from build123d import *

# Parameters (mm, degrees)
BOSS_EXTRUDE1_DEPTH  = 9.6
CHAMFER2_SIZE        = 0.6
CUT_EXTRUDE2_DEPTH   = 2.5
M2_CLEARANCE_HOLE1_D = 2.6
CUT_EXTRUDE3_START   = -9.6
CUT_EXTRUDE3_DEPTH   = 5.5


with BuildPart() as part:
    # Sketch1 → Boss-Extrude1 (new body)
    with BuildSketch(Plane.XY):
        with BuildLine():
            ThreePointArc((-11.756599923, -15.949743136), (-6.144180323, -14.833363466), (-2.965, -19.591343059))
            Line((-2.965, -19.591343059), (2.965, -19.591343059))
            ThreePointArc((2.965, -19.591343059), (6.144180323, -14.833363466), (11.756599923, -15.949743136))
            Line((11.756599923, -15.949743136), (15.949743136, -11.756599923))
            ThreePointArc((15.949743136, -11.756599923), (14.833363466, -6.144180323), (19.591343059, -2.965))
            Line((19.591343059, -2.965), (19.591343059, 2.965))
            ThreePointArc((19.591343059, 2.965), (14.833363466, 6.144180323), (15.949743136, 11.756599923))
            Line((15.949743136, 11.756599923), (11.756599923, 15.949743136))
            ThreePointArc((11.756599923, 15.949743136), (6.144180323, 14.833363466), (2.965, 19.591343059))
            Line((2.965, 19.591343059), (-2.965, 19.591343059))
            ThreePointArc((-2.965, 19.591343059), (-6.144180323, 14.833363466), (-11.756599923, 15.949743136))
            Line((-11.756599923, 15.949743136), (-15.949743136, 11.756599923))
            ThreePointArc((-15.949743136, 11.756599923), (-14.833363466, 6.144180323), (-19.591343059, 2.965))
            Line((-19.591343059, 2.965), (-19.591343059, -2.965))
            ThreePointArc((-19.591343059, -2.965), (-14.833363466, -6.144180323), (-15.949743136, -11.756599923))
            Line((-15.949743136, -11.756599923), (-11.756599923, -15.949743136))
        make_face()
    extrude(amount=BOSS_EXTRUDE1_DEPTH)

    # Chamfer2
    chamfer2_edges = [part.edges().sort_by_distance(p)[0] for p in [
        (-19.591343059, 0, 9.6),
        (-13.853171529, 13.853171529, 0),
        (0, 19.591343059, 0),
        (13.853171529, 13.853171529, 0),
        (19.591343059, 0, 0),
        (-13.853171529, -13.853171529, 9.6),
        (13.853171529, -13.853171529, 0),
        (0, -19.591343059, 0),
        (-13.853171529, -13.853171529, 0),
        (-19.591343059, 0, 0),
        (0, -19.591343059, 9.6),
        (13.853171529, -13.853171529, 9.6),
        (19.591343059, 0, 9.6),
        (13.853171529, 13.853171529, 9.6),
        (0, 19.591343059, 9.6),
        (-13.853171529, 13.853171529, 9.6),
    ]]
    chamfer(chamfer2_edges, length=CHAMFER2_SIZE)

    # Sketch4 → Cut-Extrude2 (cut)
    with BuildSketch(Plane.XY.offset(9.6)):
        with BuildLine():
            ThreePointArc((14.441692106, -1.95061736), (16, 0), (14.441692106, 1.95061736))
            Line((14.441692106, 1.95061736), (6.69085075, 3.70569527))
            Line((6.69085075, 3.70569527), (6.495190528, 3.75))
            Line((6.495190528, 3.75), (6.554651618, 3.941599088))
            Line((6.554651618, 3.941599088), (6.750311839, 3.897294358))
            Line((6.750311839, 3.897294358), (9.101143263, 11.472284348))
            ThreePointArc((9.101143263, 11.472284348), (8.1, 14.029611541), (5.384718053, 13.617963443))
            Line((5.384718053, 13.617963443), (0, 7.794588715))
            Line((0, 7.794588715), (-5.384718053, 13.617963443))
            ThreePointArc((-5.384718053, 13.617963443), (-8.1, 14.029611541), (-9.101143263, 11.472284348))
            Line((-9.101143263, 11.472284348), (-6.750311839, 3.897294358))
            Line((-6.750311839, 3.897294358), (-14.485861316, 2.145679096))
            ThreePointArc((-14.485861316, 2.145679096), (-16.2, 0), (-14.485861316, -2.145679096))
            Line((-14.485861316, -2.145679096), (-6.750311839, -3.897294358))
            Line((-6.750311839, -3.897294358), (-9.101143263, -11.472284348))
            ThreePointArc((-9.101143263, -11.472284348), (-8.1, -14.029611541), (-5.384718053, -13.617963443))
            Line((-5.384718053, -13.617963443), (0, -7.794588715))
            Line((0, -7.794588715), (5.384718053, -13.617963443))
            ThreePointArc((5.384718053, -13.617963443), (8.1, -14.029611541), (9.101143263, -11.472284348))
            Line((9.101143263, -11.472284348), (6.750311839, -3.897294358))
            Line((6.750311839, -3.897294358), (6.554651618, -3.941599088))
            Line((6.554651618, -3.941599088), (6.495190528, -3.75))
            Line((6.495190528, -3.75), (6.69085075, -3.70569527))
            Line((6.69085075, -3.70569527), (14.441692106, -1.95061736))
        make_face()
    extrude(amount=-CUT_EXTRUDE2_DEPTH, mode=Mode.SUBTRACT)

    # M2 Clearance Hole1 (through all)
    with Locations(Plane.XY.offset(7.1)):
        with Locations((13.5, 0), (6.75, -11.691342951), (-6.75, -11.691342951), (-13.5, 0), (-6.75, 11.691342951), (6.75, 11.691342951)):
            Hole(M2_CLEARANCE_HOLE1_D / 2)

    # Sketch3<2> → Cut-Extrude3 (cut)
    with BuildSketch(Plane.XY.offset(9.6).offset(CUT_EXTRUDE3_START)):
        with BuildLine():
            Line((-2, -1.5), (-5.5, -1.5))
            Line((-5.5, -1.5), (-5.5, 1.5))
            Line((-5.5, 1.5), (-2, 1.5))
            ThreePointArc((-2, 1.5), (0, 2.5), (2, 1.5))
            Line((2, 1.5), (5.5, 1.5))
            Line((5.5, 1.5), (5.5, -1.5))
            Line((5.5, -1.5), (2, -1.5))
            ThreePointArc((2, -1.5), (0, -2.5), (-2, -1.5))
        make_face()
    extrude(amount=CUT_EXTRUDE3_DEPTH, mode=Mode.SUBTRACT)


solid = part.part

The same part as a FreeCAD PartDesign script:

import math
import FreeCAD as App
import Part
import Sketcher

V = App.Vector


def edges_at(feature, points):
    """Names of the edges that pass closest to the given points."""
    edges = feature.Shape.Edges
    near = lambda p: min(range(len(edges)), key=lambda i: edges[i].distToShape(Part.Vertex(*p))[0])
    return sorted({f"Edge{near(p) + 1}" for p in points})

doc = App.newDocument("Part")
params = doc.addObject("Spreadsheet::Sheet", "Params")
for row, (alias, value) in enumerate([
    ("sketch1_radius", "5.15 mm"),
    ("sketch1_width", "5.93 mm"),
    ("sketch1_length", "5.93 mm"),
    ("pad1_length", "9.6 mm"),
    ("chamfer_size", "0.6 mm"),
    ("sketch2_radius", "2 mm"),
    ("sketch2_radius2", "2.2 mm"),
    ("pocket1_length", "2.5 mm"),
    ("sketch3_diameter", "2.6 mm"),
    ("hole_diameter", "2.6 mm"),
    ("sketch4_radius", "2.5 mm"),
    ("sketch4_height", "3 mm"),
    ("sketch4_width", "3.5 mm"),
    ("pocket2_length", "5.5 mm"),
], start=1):
    params.set(f"A{row}", alias)
    params.set(f"B{row}", "=" + value)
    params.setAlias(f"B{row}", alias)

body = doc.addObject("PartDesign::Body", "Body")

# Sketch on XY plane
sketch1 = body.newObject("Sketcher::SketchObject", "Sketch")
sketch1.AttachmentSupport = (doc.getObject("XY_Plane"), [""])
sketch1.MapMode = "FlatFace"
sketch1.addGeometry(Part.ArcOfCircle(Part.Circle(V(-8, -20, 0), V(0, 0, 1), 5), math.radians(0), math.radians(135)), False)
sketch1.addGeometry(Part.LineSegment(V(-3, -20, 0), V(3, -20, 0)), False)
sketch1.addGeometry(Part.ArcOfCircle(Part.Circle(V(8, -20, 0), V(0, 0, 1), 5), math.radians(45), math.radians(180)), False)
sketch1.addGeometry(Part.LineSegment(V(12, -16, 0), V(16, -12, 0)), False)
sketch1.addGeometry(Part.ArcOfCircle(Part.Circle(V(20, -8, 0), V(0, 0, 1), 5), math.radians(90), math.radians(225)), False)
sketch1.addGeometry(Part.LineSegment(V(20, -3, 0), V(20, 3, 0)), False)
sketch1.addGeometry(Part.ArcOfCircle(Part.Circle(V(20, 8, 0), V(0, 0, 1), 5), math.radians(135), math.radians(270)), False)
sketch1.addGeometry(Part.LineSegment(V(16, 12, 0), V(12, 16, 0)), False)
sketch1.addGeometry(Part.ArcOfCircle(Part.Circle(V(8, 20, 0), V(0, 0, 1), 5), math.radians(180), math.radians(315)), False)
sketch1.addGeometry(Part.LineSegment(V(3, 20, 0), V(-3, 20, 0)), False)
sketch1.addGeometry(Part.ArcOfCircle(Part.Circle(V(-8, 20, 0), V(0, 0, 1), 5), math.radians(-135), math.radians(0)), False)
sketch1.addGeometry(Part.LineSegment(V(-12, 16, 0), V(-16, 12, 0)), False)
sketch1.addGeometry(Part.ArcOfCircle(Part.Circle(V(-20, 8, 0), V(0, 0, 1), 5), math.radians(-90), math.radians(45)), False)
sketch1.addGeometry(Part.LineSegment(V(-20, 3, 0), V(-20, -3, 0)), False)
sketch1.addGeometry(Part.ArcOfCircle(Part.Circle(V(-20, -8, 0), V(0, 0, 1), 5), math.radians(-45), math.radians(90)), False)
sketch1.addGeometry(Part.LineSegment(V(-16, -12, 0), V(-12, -16, 0)), False)
sketch1.addConstraint(Sketcher.Constraint("Coincident", 0, 1, 1, 1))
sketch1.addConstraint(Sketcher.Constraint("Coincident", 1, 2, 2, 2))
sketch1.addConstraint(Sketcher.Constraint("Coincident", 2, 1, 3, 1))
sketch1.addConstraint(Sketcher.Constraint("Coincident", 3, 2, 4, 2))
sketch1.addConstraint(Sketcher.Constraint("Coincident", 4, 1, 5, 1))
sketch1.addConstraint(Sketcher.Constraint("Coincident", 5, 2, 6, 2))
sketch1.addConstraint(Sketcher.Constraint("Coincident", 6, 1, 7, 1))
sketch1.addConstraint(Sketcher.Constraint("Coincident", 7, 2, 8, 2))
sketch1.addConstraint(Sketcher.Constraint("Coincident", 8, 1, 9, 1))
sketch1.addConstraint(Sketcher.Constraint("Coincident", 9, 2, 10, 2))
sketch1.addConstraint(Sketcher.Constraint("Coincident", 10, 1, 11, 1))
sketch1.addConstraint(Sketcher.Constraint("Coincident", 11, 2, 12, 2))
sketch1.addConstraint(Sketcher.Constraint("Coincident", 12, 1, 13, 1))
sketch1.addConstraint(Sketcher.Constraint("Coincident", 13, 2, 14, 2))
sketch1.addConstraint(Sketcher.Constraint("Coincident", 14, 1, 15, 1))
sketch1.addConstraint(Sketcher.Constraint("Coincident", 15, 2, 0, 2))
sketch1.addConstraint(Sketcher.Constraint("Horizontal", 1))
sketch1.addConstraint(Sketcher.Constraint("Vertical", 5))
sketch1.addConstraint(Sketcher.Constraint("Horizontal", 9))
sketch1.addConstraint(Sketcher.Constraint("Vertical", 13))
sketch1.addConstraint(Sketcher.Constraint("Equal", 0, 2))
sketch1.addConstraint(Sketcher.Constraint("Equal", 2, 4))
sketch1.addConstraint(Sketcher.Constraint("Equal", 4, 6))
sketch1.addConstraint(Sketcher.Constraint("Equal", 6, 8))
sketch1.addConstraint(Sketcher.Constraint("Equal", 8, 10))
sketch1.addConstraint(Sketcher.Constraint("Equal", 10, 12))
sketch1.addConstraint(Sketcher.Constraint("Equal", 12, 14))
sketch1.addConstraint(Sketcher.Constraint("Symmetric", 0, 3, 8, 3, -1, 1))
sketch1.addConstraint(Sketcher.Constraint("Symmetric", 2, 3, 10, 3, -1, 1))
sketch1.addConstraint(Sketcher.Constraint("Symmetric", 4, 3, 12, 3, -1, 1))
sketch1.addConstraint(Sketcher.Constraint("Symmetric", 6, 3, 14, 3, -1, 1))
sketch1.addConstraint(Sketcher.Constraint("Symmetric", 0, 3, 2, 3, -2))
sketch1.addConstraint(Sketcher.Constraint("Symmetric", 6, 3, 12, 3, -2))
sketch1.addConstraint(Sketcher.Constraint("Perpendicular", 3, 7))
sketch1.addConstraint(Sketcher.Constraint("Perpendicular", 7, 11))
sketch1.addConstraint(Sketcher.Constraint("Perpendicular", 11, 15))
sketch1.addConstraint(Sketcher.Constraint("Horizontal", 2, 3, 0, 1))
sketch1.addConstraint(Sketcher.Constraint("Horizontal", 10, 3, 8, 1))
sketch1.addConstraint(Sketcher.Constraint("Horizontal", 7, 2, 10, 1))
sketch1.addConstraint(Sketcher.Constraint("Horizontal", 6, 1, 11, 2))
sketch1.addConstraint(Sketcher.Constraint("Horizontal", 3, 2, 14, 1))
sketch1.addConstraint(Sketcher.Constraint("Vertical", 6, 3, 4, 1))
sketch1.addConstraint(Sketcher.Constraint("Vertical", 3, 2, 6, 1))
sketch1.addConstraint(Sketcher.Constraint("Vertical", 14, 3, 12, 1))
sketch1.addConstraint(Sketcher.Constraint("Equal", 9, 5))
sketch1.addConstraint(Sketcher.Constraint("Radius", 0, 5.15))
sketch1.addConstraint(Sketcher.Constraint("DistanceX", 1, 1, 1, 2, 5.93))
sketch1.addConstraint(Sketcher.Constraint("Distance", 3, 5.93))
sketch1.addConstraint(Sketcher.Constraint("DistanceX", -1, 1, 2, 1, 11.7566))
sketch1.addConstraint(Sketcher.Constraint("DistanceY", 3, 2, -1, 1, 11.7566))
sketch1.setExpression("Constraints[45]", "Params.sketch1_radius")
sketch1.setExpression("Constraints[46]", "Params.sketch1_width")
sketch1.setExpression("Constraints[47]", "Params.sketch1_length")
pad1 = body.newObject("PartDesign::Pad", "Pad")
pad1.Profile = sketch1
pad1.setExpression("Length", "Params.pad1_length")
doc.recompute()

chamfer = body.newObject("PartDesign::Chamfer", "Chamfer")
chamfer.Base = (pad1, edges_at(pad1, [
    (-19.591, 0, 9.6),
    (-13.853, 13.853, 0),
    (0, 19.591, 0),
    (13.853, 13.853, 0),
    (19.591, 0, 0),
    (-13.853, -13.853, 9.6),
    (13.853, -13.853, 0),
    (0, -19.591, 0),
    (-13.853, -13.853, 0),
    (-19.591, 0, 0),
    (0, -19.591, 9.6),
    (13.853, -13.853, 9.6),
    (19.591, 0, 9.6),
    (13.853, 13.853, 9.6),
    (0, 19.591, 9.6),
    (-13.853, 13.853, 9.6),
]))
chamfer.setExpression("Size", "Params.chamfer_size")

# Sketch on XY plane
sketch2 = body.newObject("Sketcher::SketchObject", "Sketch001")
sketch2.AttachmentSupport = (doc.getObject("XY_Plane"), [""])
sketch2.MapMode = "FlatFace"
sketch2.AttachmentOffset = App.Placement(V(0, 0, 9.6), App.Rotation())
sketch2.addGeometry(Part.ArcOfCircle(Part.Circle(V(14, 0, 0), V(0, 0, 1), 2), math.radians(-77), math.radians(77)), False)
sketch2.addGeometry(Part.LineSegment(V(14.44, 1.95, 0), V(6.69, 3.71, 0)), False)
sketch2.addGeometry(Part.LineSegment(V(6.69, 3.71, 0), V(6.5, 3.75, 0)), False)
sketch2.addGeometry(Part.LineSegment(V(6.5, 3.75, 0), V(6.55, 3.94, 0)), False)
sketch2.addGeometry(Part.LineSegment(V(6.55, 3.94, 0), V(6.75, 3.9, 0)), False)
sketch2.addGeometry(Part.LineSegment(V(6.75, 3.9, 0), V(9.1, 11.47, 0)), False)
sketch2.addGeometry(Part.ArcOfCircle(Part.Circle(V(7, 12.12, 0), V(0, 0, 1), 2.2), math.radians(-17), math.radians(137)), False)
sketch2.addGeometry(Part.LineSegment(V(5.38, 13.62, 0), V(0, 7.79, 0)), False)
sketch2.addGeometry(Part.LineSegment(V(0, 7.79, 0), V(-5.38, 13.62, 0)), False)
sketch2.addGeometry(Part.ArcOfCircle(Part.Circle(V(-7, 12.12, 0), V(0, 0, 1), 2.2), math.radians(43), math.radians(197)), False)
sketch2.addGeometry(Part.LineSegment(V(-9.1, 11.47, 0), V(-6.75, 3.9, 0)), False)
sketch2.addGeometry(Part.LineSegment(V(-6.75, 3.9, 0), V(-14.49, 2.15, 0)), False)
sketch2.addGeometry(Part.ArcOfCircle(Part.Circle(V(-14, 0, 0), V(0, 0, 1), 2.2), math.radians(103), math.radians(257)), False)
sketch2.addGeometry(Part.LineSegment(V(-14.49, -2.15, 0), V(-6.75, -3.9, 0)), False)
sketch2.addGeometry(Part.LineSegment(V(-6.75, -3.9, 0), V(-9.1, -11.47, 0)), False)
sketch2.addGeometry(Part.ArcOfCircle(Part.Circle(V(-7, -12.12, 0), V(0, 0, 1), 2.2), math.radians(163), math.radians(317)), False)
sketch2.addGeometry(Part.LineSegment(V(-5.38, -13.62, 0), V(0, -7.79, 0)), False)
sketch2.addGeometry(Part.LineSegment(V(0, -7.79, 0), V(5.38, -13.62, 0)), False)
sketch2.addGeometry(Part.ArcOfCircle(Part.Circle(V(7, -12.12, 0), V(0, 0, 1), 2.2), math.radians(-137), math.radians(17)), False)
sketch2.addGeometry(Part.LineSegment(V(9.1, -11.47, 0), V(6.75, -3.9, 0)), False)
sketch2.addGeometry(Part.LineSegment(V(6.75, -3.9, 0), V(6.55, -3.94, 0)), False)
sketch2.addGeometry(Part.LineSegment(V(6.55, -3.94, 0), V(6.5, -3.75, 0)), False)
sketch2.addGeometry(Part.LineSegment(V(6.5, -3.75, 0), V(6.69, -3.71, 0)), False)
sketch2.addGeometry(Part.LineSegment(V(6.69, -3.71, 0), V(14.44, -1.95, 0)), False)
sketch2.addConstraint(Sketcher.Constraint("Tangent", 0, 2, 1, 1))
sketch2.addConstraint(Sketcher.Constraint("Coincident", 1, 2, 2, 1))
sketch2.addConstraint(Sketcher.Constraint("Coincident", 2, 2, 3, 1))
sketch2.addConstraint(Sketcher.Constraint("Coincident", 3, 2, 4, 1))
sketch2.addConstraint(Sketcher.Constraint("Coincident", 4, 2, 5, 1))
sketch2.addConstraint(Sketcher.Constraint("Tangent", 5, 2, 6, 1))
sketch2.addConstraint(Sketcher.Constraint("Tangent", 6, 2, 7, 1))
sketch2.addConstraint(Sketcher.Constraint("Coincident", 7, 2, 8, 1))
sketch2.addConstraint(Sketcher.Constraint("Tangent", 8, 2, 9, 1))
sketch2.addConstraint(Sketcher.Constraint("Tangent", 9, 2, 10, 1))
sketch2.addConstraint(Sketcher.Constraint("Coincident", 10, 2, 11, 1))
sketch2.addConstraint(Sketcher.Constraint("Tangent", 11, 2, 12, 1))
sketch2.addConstraint(Sketcher.Constraint("Tangent", 12, 2, 13, 1))
sketch2.addConstraint(Sketcher.Constraint("Coincident", 13, 2, 14, 1))
sketch2.addConstraint(Sketcher.Constraint("Tangent", 14, 2, 15, 1))
sketch2.addConstraint(Sketcher.Constraint("Tangent", 15, 2, 16, 1))
sketch2.addConstraint(Sketcher.Constraint("Coincident", 16, 2, 17, 1))
sketch2.addConstraint(Sketcher.Constraint("Tangent", 17, 2, 18, 1))
sketch2.addConstraint(Sketcher.Constraint("Tangent", 18, 2, 19, 1))
sketch2.addConstraint(Sketcher.Constraint("Coincident", 19, 2, 20, 1))
sketch2.addConstraint(Sketcher.Constraint("Coincident", 20, 2, 21, 1))
sketch2.addConstraint(Sketcher.Constraint("Coincident", 21, 2, 22, 1))
sketch2.addConstraint(Sketcher.Constraint("Coincident", 22, 2, 23, 1))
sketch2.addConstraint(Sketcher.Constraint("Tangent", 23, 2, 0, 1))
sketch2.addConstraint(Sketcher.Constraint("Equal", 6, 9))
sketch2.addConstraint(Sketcher.Constraint("Equal", 9, 12))
sketch2.addConstraint(Sketcher.Constraint("Equal", 12, 15))
sketch2.addConstraint(Sketcher.Constraint("Equal", 15, 18))
sketch2.addConstraint(Sketcher.Constraint("Symmetric", 0, 3, 12, 3, -1, 1))
sketch2.addConstraint(Sketcher.Constraint("Symmetric", 6, 3, 15, 3, -1, 1))
sketch2.addConstraint(Sketcher.Constraint("Symmetric", 9, 3, 18, 3, -1, 1))
sketch2.addConstraint(Sketcher.Constraint("Symmetric", 4, 2, 13, 2, -1, 1))
sketch2.addConstraint(Sketcher.Constraint("Symmetric", 7, 2, 16, 2, -1, 1))
sketch2.addConstraint(Sketcher.Constraint("Symmetric", 10, 2, 19, 2, -1, 1))
sketch2.addConstraint(Sketcher.Constraint("Symmetric", 6, 3, 9, 3, -2))
sketch2.addConstraint(Sketcher.Constraint("Symmetric", 4, 2, 10, 2, -2))
sketch2.addConstraint(Sketcher.Constraint("Symmetric", 3, 2, 20, 2, -1))
sketch2.addConstraint(Sketcher.Constraint("Symmetric", 2, 2, 21, 2, -1))
sketch2.addConstraint(Sketcher.Constraint("Symmetric", 1, 2, 22, 2, -1))
sketch2.addConstraint(Sketcher.Constraint("PointOnObject", 0, 3, -1))
sketch2.addConstraint(Sketcher.Constraint("PointOnObject", 7, 2, -2))
sketch2.addConstraint(Sketcher.Constraint("Parallel", 1, 2))
sketch2.addConstraint(Sketcher.Constraint("Parallel", 2, 4))
sketch2.addConstraint(Sketcher.Constraint("Parallel", 3, 5))
sketch2.addConstraint(Sketcher.Constraint("Parallel", 4, 13))
sketch2.addConstraint(Sketcher.Constraint("Equal", 2, 3))
sketch2.addConstraint(Sketcher.Constraint("Equal", 3, 4))
sketch2.addConstraint(Sketcher.Constraint("Equal", 5, 7))
sketch2.addConstraint(Sketcher.Constraint("Equal", 10, 11))
sketch2.addConstraint(Sketcher.Constraint("Radius", 0, 2.0))
sketch2.addConstraint(Sketcher.Constraint("Radius", 6, 2.2))
sketch2.addConstraint(Sketcher.Constraint("DistanceX", -1, 1, 0, 3, 14.0))
sketch2.addConstraint(Sketcher.Constraint("DistanceX", -1, 1, 6, 3, 7.0))
sketch2.addConstraint(Sketcher.Constraint("DistanceY", 21, 2, 2, 2, 7.5))
sketch2.addConstraint(Sketcher.Constraint("DistanceX", 2, 2, 0, 2, 7.946502))
sketch2.setExpression("Constraints[49]", "Params.sketch2_radius")
sketch2.setExpression("Constraints[50]", "Params.sketch2_radius2")
pocket1 = body.newObject("PartDesign::Pocket", "Pocket")
pocket1.Profile = sketch2
pocket1.setExpression("Length", "Params.pocket1_length")

# Sketch on XY plane
sketch3 = body.newObject("Sketcher::SketchObject", "Sketch002")
sketch3.AttachmentSupport = (doc.getObject("XY_Plane"), [""])
sketch3.MapMode = "FlatFace"
sketch3.AttachmentOffset = App.Placement(V(0, 0, 7.1), App.Rotation())
sketch3.addGeometry(Part.Circle(V(13.5, 0, 0), V(0, 0, 1), 1.3), False)
sketch3.addGeometry(Part.Circle(V(6.8, -11.7, 0), V(0, 0, 1), 1.3), False)
sketch3.addGeometry(Part.Circle(V(-6.8, -11.7, 0), V(0, 0, 1), 1.3), False)
sketch3.addGeometry(Part.Circle(V(-13.5, 0, 0), V(0, 0, 1), 1.3), False)
sketch3.addGeometry(Part.Circle(V(-6.8, 11.7, 0), V(0, 0, 1), 1.3), False)
sketch3.addGeometry(Part.Circle(V(6.8, 11.7, 0), V(0, 0, 1), 1.3), False)
sketch3.addConstraint(Sketcher.Constraint("Equal", 0, 1))
sketch3.addConstraint(Sketcher.Constraint("Equal", 1, 2))
sketch3.addConstraint(Sketcher.Constraint("Equal", 2, 3))
sketch3.addConstraint(Sketcher.Constraint("Equal", 3, 4))
sketch3.addConstraint(Sketcher.Constraint("Equal", 4, 5))
sketch3.addConstraint(Sketcher.Constraint("Symmetric", 0, 3, 3, 3, -1, 1))
sketch3.addConstraint(Sketcher.Constraint("Symmetric", 1, 3, 4, 3, -1, 1))
sketch3.addConstraint(Sketcher.Constraint("Symmetric", 2, 3, 5, 3, -1, 1))
sketch3.addConstraint(Sketcher.Constraint("Symmetric", 1, 3, 2, 3, -2))
sketch3.addConstraint(Sketcher.Constraint("PointOnObject", 0, 3, -1))
sketch3.addConstraint(Sketcher.Constraint("Diameter", 0, 2.6))
sketch3.addConstraint(Sketcher.Constraint("DistanceX", 3, 3, 0, 3, 27.0))
sketch3.addConstraint(Sketcher.Constraint("DistanceX", 2, 3, 1, 3, 13.5))
sketch3.addConstraint(Sketcher.Constraint("DistanceY", 1, 3, -1, 1, 11.691343))
sketch3.setExpression("Constraints[10]", "Params.sketch3_diameter")
doc.recompute()
hole = body.newObject("PartDesign::Hole", "Hole")
hole.Profile = sketch3
hole.ThreadType = "None"
hole.setExpression("Diameter", "Params.hole_diameter")
hole.DepthType = "ThroughAll"

# Sketch on XY plane
sketch4 = body.newObject("Sketcher::SketchObject", "Sketch003")
sketch4.AttachmentSupport = (doc.getObject("XY_Plane"), [""])
sketch4.MapMode = "FlatFace"
sketch4.addGeometry(Part.LineSegment(V(-5.5, -1.5, 0), V(-2, -1.5, 0)), False)
sketch4.addGeometry(Part.ArcOfCircle(Part.Circle(V(0, 0, 0), V(0, 0, 1), 2.5), math.radians(-143), math.radians(-37)), False)
sketch4.addGeometry(Part.LineSegment(V(2, -1.5, 0), V(5.5, -1.5, 0)), False)
sketch4.addGeometry(Part.LineSegment(V(5.5, -1.5, 0), V(5.5, 1.5, 0)), False)
sketch4.addGeometry(Part.LineSegment(V(5.5, 1.5, 0), V(2, 1.5, 0)), False)
sketch4.addGeometry(Part.ArcOfCircle(Part.Circle(V(0, 0, 0), V(0, 0, 1), 2.5), math.radians(37), math.radians(143)), False)
sketch4.addGeometry(Part.LineSegment(V(-2, 1.5, 0), V(-5.5, 1.5, 0)), False)
sketch4.addGeometry(Part.LineSegment(V(-5.5, 1.5, 0), V(-5.5, -1.5, 0)), False)
sketch4.addConstraint(Sketcher.Constraint("Coincident", 0, 2, 1, 1))
sketch4.addConstraint(Sketcher.Constraint("Coincident", 1, 2, 2, 1))
sketch4.addConstraint(Sketcher.Constraint("Coincident", 2, 2, 3, 1))
sketch4.addConstraint(Sketcher.Constraint("Coincident", 3, 2, 4, 1))
sketch4.addConstraint(Sketcher.Constraint("Coincident", 4, 2, 5, 1))
sketch4.addConstraint(Sketcher.Constraint("Coincident", 5, 2, 6, 1))
sketch4.addConstraint(Sketcher.Constraint("Coincident", 6, 2, 7, 1))
sketch4.addConstraint(Sketcher.Constraint("Coincident", 7, 2, 0, 1))
sketch4.addConstraint(Sketcher.Constraint("Horizontal", 0))
sketch4.addConstraint(Sketcher.Constraint("Horizontal", 2))
sketch4.addConstraint(Sketcher.Constraint("Vertical", 3))
sketch4.addConstraint(Sketcher.Constraint("Horizontal", 4))
sketch4.addConstraint(Sketcher.Constraint("Horizontal", 6))
sketch4.addConstraint(Sketcher.Constraint("Vertical", 7))
sketch4.addConstraint(Sketcher.Constraint("Coincident", 1, 3, -1, 1))
sketch4.addConstraint(Sketcher.Constraint("Coincident", 5, 3, -1, 1))
sketch4.addConstraint(Sketcher.Constraint("Equal", 1, 5))
sketch4.addConstraint(Sketcher.Constraint("Symmetric", 2, 2, 6, 2, -1, 1))
sketch4.addConstraint(Sketcher.Constraint("Horizontal", 0, 2, 1, 2))
sketch4.addConstraint(Sketcher.Constraint("Horizontal", 4, 2, 5, 2))
sketch4.addConstraint(Sketcher.Constraint("Radius", 1, 2.5))
sketch4.addConstraint(Sketcher.Constraint("DistanceY", 3, 1, 3, 2, 3.0))
sketch4.addConstraint(Sketcher.Constraint("DistanceX", 0, 1, 0, 2, 3.5))
sketch4.setExpression("Constraints[20]", "Params.sketch4_radius")
sketch4.setExpression("Constraints[21]", "Params.sketch4_height")
sketch4.setExpression("Constraints[22]", "Params.sketch4_width")
pocket2 = body.newObject("PartDesign::Pocket", "Pocket001")
pocket2.Profile = sketch4
pocket2.setExpression("Length", "Params.pocket2_length")
pocket2.Reversed = True

doc.recompute()
